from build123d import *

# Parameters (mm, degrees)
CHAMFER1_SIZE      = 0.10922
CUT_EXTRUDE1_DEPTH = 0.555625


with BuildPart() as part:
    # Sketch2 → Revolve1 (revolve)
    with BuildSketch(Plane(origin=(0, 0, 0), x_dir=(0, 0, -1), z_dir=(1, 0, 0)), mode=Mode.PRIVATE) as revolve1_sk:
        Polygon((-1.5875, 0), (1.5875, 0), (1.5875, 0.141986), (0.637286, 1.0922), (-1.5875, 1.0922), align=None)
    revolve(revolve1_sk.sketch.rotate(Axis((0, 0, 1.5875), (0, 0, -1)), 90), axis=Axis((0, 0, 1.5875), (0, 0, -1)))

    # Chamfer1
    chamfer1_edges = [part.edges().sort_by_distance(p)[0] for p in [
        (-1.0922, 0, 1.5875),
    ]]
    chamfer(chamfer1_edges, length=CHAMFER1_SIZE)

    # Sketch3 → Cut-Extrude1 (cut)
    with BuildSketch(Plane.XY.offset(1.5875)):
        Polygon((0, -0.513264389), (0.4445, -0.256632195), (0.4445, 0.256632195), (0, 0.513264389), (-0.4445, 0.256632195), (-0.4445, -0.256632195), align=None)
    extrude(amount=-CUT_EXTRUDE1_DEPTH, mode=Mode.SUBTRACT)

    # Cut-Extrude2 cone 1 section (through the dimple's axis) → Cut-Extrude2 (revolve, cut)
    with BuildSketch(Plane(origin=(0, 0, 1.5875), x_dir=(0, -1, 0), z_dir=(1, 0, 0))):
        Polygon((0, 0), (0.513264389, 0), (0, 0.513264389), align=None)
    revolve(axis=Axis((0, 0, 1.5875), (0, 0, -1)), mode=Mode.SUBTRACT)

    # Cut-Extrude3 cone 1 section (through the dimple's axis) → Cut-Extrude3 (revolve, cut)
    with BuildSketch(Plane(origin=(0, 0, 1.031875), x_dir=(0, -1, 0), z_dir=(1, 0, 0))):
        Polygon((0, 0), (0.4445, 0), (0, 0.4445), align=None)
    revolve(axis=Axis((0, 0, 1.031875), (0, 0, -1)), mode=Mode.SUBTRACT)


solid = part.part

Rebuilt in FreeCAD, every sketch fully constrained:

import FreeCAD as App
import Part
import Sketcher

V = App.Vector
Q = App.Units.Quantity


def edges_at(feature, points):
    """Names of the edges that pass closest to the given points."""
    edges = feature.Shape.Edges
    near = lambda p: min(range(len(edges)), key=lambda i: edges[i].distToShape(Part.Vertex(*p))[0])
    return sorted({f"Edge{near(p) + 1}" for p in points})

doc = App.newDocument("Part")
body = doc.addObject("PartDesign::Body", "Body")

# Sketch on YZ plane
sketch1 = body.newObject("Sketcher::SketchObject", "Sketch")
sketch1.AttachmentSupport = (doc.getObject("YZ_Plane"), [""])
sketch1.MapMode = "FlatFace"
sketch1.addGeometry([
    Part.LineSegment(V(0, 1.59, 0), V(0, -1.59, 0)),  # 0
    Part.LineSegment(V(0, -1.59, 0), V(0.14, -1.59, 0)),  # 1
    Part.LineSegment(V(0.14, -1.59, 0), V(1.09, -0.64, 0)),  # 2
    Part.LineSegment(V(1.09, -0.64, 0), V(1.09, 1.59, 0)),  # 3
    Part.LineSegment(V(1.09, 1.59, 0), V(0, 1.59, 0)),  # 4
], False)
sketch1.addConstraint([
    Sketcher.Constraint("Coincident", 0, 2, 1, 1),
    Sketcher.Constraint("Coincident", 1, 2, 2, 1),
    Sketcher.Constraint("Coincident", 2, 2, 3, 1),
    Sketcher.Constraint("Coincident", 3, 2, 4, 1),
    Sketcher.Constraint("Coincident", 4, 2, 0, 1),
    Sketcher.Constraint("Vertical", 0),
    Sketcher.Constraint("Horizontal", 1),
    Sketcher.Constraint("Vertical", 3),
    Sketcher.Constraint("Horizontal", 4),
    Sketcher.Constraint("Symmetric", 0, 2, 4, 2, -1, 1),
    Sketcher.Constraint("Angle", 2, Q("45 deg")),
    Sketcher.Constraint("DistanceX", 4, 2, 4, 1, Q("0.043 in")),
    Sketcher.Constraint("DistanceY", 0, 2, 0, 1, Q("0.125 in")),
    Sketcher.Constraint("DistanceX", 1, 1, 1, 2, Q("0.141986 mm")),
])
revolution = body.newObject("PartDesign::Revolution", "Revolution")
revolution.Profile = sketch1
revolution.ReferenceAxis = (sketch1, ["V_Axis"])
revolution.Angle = 360
doc.recompute()

chamfer = body.newObject("PartDesign::Chamfer", "Chamfer")
chamfer.Base = (revolution, edges_at(revolution, [(-1.092, 0, 1.587)]))
chamfer.Size = Q("0.0043 in")

# Sketch on XY plane
sketch2 = body.newObject("Sketcher::SketchObject", "Sketch001")
sketch2.AttachmentSupport = (doc.getObject("XY_Plane"), [""])
sketch2.MapMode = "FlatFace"
sketch2.AttachmentOffset = App.Placement(V(0, 0, 0.0625 * 25.4), App.Rotation())
sketch2.addGeometry([
    Part.LineSegment(V(0, -0.5, 0), V(0.4, -0.3, 0)),  # 0
    Part.LineSegment(V(0.4, -0.3, 0), V(0.4, 0.3, 0)),  # 1
    Part.LineSegment(V(0.4, 0.3, 0), V(0, 0.5, 0)),  # 2
    Part.LineSegment(V(0, 0.5, 0), V(-0.4, 0.3, 0)),  # 3
    Part.LineSegment(V(-0.4, 0.3, 0), V(-0.4, -0.3, 0)),  # 4
    Part.LineSegment(V(-0.4, -0.3, 0), V(0, -0.5, 0)),  # 5
], False)
sketch2.addConstraint([
    Sketcher.Constraint("Coincident", 0, 2, 1, 1),
    Sketcher.Constraint("Coincident", 1, 2, 2, 1),
    Sketcher.Constraint("Coincident", 2, 2, 3, 1),
    Sketcher.Constraint("Coincident", 3, 2, 4, 1),
    Sketcher.Constraint("Coincident", 4, 2, 5, 1),
    Sketcher.Constraint("Coincident", 5, 2, 0, 1),
    Sketcher.Constraint("Vertical", 1),
    Sketcher.Constraint("Vertical", 4),
    Sketcher.Constraint("Symmetric", 0, 2, 3, 2, -1, 1),
    Sketcher.Constraint("Symmetric", 2, 2, 5, 2, -1, 1),
    Sketcher.Constraint("PointOnObject", 2, 2, -2),
    Sketcher.Constraint("Parallel", 2, 5),
    Sketcher.Constraint("Horizontal", 1, 2, 3, 2),
    Sketcher.Constraint("Angle", 0, Q("30 deg")),
    Sketcher.Constraint("DistanceX", 3, 2, 1, 2, Q("0.035 in")),
    Sketcher.Constraint("DistanceY", 1, 1, 1, 2, Q("0.513264 mm")),
])
pocket1 = body.newObject("PartDesign::Pocket", "Pocket")
pocket1.Profile = sketch2
pocket1.Length = 0.555625

# Sketch on YZ plane
sketch3 = body.newObject("Sketcher::SketchObject", "Sketch002")
sketch3.AttachmentSupport = (doc.getObject("YZ_Plane"), [""])
sketch3.MapMode = "FlatFace"
sketch3.addGeometry([
    Part.LineSegment(V(0, 1.6, 0), V(-0.5, 1.6, 0)),
    Part.LineSegment(V(-0.5, 1.6, 0), V(0, 1.1, 0)),
    Part.LineSegment(V(0, 1.1, 0), V(0, 1.6, 0)),
], False)
sketch3.addConstraint([
    Sketcher.Constraint("Coincident", 0, 2, 1, 1),
    Sketcher.Constraint("Coincident", 1, 2, 2, 1),
    Sketcher.Constraint("Coincident", 2, 2, 0, 1),
    Sketcher.Constraint("Horizontal", 0),
    Sketcher.Constraint("Vertical", 2),
    Sketcher.Constraint("PointOnObject", 1, 2, -2),
    Sketcher.Constraint("Equal", 0, 2),
    Sketcher.Constraint("DistanceY", -1, 1, 0, 2, Q("0.0625 in")),
    Sketcher.Constraint("DistanceX", 0, 2, 0, 1, Q("0.513264 mm")),
])
groove = body.newObject("PartDesign::Groove", "Groove")
groove.Profile = sketch3
groove.ReferenceAxis = (sketch3, ["V_Axis"])
groove.Angle = 360

# Sketch on YZ plane
sketch4 = body.newObject("Sketcher::SketchObject", "Sketch003")
sketch4.AttachmentSupport = (doc.getObject("YZ_Plane"), [""])
sketch4.MapMode = "FlatFace"
sketch4.addGeometry([
    Part.LineSegment(V(0, 1.03, 0), V(-0.44, 1.03, 0)),
    Part.LineSegment(V(-0.44, 1.03, 0), V(0, 0.59, 0)),
    Part.LineSegment(V(0, 0.59, 0), V(0, 1.03, 0)),
], False)
sketch4.addConstraint([
    Sketcher.Constraint("Coincident", 0, 2, 1, 1),
    Sketcher.Constraint("Coincident", 1, 2, 2, 1),
    Sketcher.Constraint("Coincident", 2, 2, 0, 1),
    Sketcher.Constraint("Horizontal", 0),
    Sketcher.Constraint("Vertical", 2),
    Sketcher.Constraint("PointOnObject", 1, 2, -2),
    Sketcher.Constraint("Equal", 0, 2),
    Sketcher.Constraint("DistanceX", 0, 2, 0, 1, Q("0.0175 in")),
    Sketcher.Constraint("DistanceY", -1, 1, 0, 2, Q("1.031875 mm")),
])
groove2 = body.newObject("PartDesign::Groove", "Groove001")
groove2.Profile = sketch4
groove2.ReferenceAxis = (sketch4, ["V_Axis"])
groove2.Angle = 360

doc.recompute()
